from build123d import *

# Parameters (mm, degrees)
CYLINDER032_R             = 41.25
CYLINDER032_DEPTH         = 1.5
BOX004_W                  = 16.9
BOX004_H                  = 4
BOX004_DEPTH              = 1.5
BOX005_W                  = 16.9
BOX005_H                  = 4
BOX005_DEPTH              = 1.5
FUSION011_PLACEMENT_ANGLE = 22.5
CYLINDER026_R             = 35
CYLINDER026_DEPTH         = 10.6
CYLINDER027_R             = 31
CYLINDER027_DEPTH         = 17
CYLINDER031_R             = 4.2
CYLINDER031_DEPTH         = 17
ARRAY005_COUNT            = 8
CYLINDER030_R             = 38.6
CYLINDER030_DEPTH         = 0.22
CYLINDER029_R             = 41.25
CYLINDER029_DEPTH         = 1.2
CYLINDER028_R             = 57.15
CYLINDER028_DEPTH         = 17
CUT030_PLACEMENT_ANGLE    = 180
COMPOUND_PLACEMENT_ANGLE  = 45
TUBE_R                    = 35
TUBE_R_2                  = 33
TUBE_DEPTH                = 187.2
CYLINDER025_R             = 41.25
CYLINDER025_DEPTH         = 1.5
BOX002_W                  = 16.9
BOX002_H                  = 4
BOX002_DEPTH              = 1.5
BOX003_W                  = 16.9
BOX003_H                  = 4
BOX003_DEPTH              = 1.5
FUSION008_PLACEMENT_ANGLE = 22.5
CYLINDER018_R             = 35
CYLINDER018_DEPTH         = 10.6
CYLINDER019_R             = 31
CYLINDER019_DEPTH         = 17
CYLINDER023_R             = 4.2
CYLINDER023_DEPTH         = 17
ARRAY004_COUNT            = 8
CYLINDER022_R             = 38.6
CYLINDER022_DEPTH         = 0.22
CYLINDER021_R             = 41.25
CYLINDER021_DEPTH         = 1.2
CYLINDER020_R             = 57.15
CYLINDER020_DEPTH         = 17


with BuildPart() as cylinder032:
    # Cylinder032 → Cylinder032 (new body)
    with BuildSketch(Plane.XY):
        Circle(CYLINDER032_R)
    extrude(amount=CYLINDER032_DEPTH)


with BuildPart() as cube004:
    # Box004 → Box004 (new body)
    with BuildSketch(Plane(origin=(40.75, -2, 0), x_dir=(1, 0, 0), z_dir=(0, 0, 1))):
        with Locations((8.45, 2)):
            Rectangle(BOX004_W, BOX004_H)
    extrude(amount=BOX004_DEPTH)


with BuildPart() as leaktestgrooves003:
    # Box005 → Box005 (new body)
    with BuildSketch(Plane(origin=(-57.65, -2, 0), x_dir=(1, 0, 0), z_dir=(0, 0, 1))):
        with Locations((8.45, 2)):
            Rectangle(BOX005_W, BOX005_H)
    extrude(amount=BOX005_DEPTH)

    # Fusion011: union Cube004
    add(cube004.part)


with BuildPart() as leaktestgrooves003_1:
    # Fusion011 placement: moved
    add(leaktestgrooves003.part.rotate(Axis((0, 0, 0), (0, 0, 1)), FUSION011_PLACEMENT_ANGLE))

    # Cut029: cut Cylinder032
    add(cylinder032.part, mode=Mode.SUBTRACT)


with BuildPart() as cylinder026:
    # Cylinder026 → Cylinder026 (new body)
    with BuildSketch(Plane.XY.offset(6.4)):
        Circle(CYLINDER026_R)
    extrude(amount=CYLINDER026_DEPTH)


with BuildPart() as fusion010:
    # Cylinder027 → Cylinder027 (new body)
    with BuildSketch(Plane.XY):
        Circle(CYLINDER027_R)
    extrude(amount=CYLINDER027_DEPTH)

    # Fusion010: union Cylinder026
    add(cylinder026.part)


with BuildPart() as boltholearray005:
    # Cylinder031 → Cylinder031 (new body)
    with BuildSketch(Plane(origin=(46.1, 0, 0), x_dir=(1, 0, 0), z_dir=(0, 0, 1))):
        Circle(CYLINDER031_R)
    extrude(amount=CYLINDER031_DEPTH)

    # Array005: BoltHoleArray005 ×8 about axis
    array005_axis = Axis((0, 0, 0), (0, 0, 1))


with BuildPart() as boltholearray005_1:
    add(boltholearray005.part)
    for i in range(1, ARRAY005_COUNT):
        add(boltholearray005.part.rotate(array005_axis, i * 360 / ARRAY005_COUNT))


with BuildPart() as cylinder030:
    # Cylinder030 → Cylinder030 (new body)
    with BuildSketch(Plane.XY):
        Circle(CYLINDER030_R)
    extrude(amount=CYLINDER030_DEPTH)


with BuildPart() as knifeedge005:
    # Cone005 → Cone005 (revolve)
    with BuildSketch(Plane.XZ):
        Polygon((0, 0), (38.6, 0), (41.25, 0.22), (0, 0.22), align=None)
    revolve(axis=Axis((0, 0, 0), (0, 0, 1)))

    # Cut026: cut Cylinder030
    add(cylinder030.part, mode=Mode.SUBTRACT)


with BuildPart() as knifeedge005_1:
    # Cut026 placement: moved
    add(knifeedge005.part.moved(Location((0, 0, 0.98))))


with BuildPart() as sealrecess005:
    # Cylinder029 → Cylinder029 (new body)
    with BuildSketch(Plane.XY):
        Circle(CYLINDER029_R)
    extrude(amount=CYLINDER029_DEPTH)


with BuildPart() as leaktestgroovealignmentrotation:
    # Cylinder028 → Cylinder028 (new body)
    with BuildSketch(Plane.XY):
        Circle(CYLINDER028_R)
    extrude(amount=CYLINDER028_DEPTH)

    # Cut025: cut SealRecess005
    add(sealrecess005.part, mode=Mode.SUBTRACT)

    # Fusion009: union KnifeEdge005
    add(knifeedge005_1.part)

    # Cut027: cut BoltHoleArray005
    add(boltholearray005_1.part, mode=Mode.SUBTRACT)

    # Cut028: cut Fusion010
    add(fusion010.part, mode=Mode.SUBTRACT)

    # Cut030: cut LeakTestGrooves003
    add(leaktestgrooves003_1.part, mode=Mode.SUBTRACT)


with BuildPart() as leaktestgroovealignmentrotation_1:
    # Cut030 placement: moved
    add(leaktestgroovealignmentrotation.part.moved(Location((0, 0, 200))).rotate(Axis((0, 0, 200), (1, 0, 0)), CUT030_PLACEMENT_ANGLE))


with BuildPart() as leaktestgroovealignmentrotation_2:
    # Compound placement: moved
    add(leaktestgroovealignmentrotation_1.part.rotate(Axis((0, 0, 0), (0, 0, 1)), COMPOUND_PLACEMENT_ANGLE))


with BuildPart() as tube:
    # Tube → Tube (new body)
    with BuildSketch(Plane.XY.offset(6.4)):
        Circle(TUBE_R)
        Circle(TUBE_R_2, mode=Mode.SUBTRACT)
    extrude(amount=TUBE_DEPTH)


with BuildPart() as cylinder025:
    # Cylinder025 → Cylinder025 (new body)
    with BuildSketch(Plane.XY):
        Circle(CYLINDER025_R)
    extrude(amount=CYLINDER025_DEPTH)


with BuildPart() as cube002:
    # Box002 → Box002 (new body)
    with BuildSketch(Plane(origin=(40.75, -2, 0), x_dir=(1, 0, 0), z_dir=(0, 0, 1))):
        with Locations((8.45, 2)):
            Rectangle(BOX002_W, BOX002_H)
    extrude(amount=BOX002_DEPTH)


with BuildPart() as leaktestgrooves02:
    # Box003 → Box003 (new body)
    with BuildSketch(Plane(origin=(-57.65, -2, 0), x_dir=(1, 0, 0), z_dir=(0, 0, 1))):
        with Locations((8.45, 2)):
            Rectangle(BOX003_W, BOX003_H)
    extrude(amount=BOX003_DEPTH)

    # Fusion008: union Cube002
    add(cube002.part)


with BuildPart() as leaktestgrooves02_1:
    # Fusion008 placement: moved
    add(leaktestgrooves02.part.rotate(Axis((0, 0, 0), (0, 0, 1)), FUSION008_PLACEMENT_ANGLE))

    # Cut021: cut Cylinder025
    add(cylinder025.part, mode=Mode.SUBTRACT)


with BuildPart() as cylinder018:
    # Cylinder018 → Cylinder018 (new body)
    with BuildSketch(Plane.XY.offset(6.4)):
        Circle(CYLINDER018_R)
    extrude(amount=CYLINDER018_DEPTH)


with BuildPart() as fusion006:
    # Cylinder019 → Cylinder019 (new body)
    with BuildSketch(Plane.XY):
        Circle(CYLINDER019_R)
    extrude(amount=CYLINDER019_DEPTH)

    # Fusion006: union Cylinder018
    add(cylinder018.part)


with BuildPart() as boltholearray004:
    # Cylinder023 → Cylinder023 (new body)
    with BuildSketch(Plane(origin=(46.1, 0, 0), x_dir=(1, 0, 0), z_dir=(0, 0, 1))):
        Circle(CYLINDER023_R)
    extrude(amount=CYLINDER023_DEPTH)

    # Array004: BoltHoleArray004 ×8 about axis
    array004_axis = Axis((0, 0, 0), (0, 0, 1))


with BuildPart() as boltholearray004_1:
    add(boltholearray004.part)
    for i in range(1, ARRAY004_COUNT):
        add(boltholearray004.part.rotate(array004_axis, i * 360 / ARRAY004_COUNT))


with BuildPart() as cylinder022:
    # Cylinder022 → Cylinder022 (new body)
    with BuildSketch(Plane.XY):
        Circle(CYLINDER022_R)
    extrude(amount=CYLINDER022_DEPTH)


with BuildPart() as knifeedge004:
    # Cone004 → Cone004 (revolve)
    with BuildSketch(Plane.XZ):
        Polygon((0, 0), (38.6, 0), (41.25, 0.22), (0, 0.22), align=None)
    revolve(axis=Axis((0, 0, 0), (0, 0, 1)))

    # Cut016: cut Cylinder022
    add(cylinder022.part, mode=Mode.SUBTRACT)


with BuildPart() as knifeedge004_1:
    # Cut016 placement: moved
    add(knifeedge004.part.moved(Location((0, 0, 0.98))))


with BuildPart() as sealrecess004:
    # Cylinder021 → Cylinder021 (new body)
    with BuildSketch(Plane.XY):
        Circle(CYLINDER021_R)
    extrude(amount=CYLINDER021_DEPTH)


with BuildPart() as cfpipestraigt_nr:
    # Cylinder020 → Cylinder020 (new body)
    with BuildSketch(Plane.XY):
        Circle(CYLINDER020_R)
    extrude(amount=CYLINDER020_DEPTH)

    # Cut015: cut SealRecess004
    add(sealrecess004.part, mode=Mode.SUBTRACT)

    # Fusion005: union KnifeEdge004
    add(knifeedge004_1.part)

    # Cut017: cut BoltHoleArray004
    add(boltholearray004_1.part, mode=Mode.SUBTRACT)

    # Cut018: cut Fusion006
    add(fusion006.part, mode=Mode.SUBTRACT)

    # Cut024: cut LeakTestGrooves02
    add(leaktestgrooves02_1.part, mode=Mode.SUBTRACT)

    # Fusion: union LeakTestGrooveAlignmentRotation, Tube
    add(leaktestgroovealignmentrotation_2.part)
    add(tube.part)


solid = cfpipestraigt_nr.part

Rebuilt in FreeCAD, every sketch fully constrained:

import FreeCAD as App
import Part
import Sketcher

V = App.Vector
Q = App.Units.Quantity

doc = App.newDocument("Part")
body = doc.addObject("PartDesign::Body", "Body")

sketch1 = doc.addObject("Sketcher::SketchObject", "Sketch")
body.addObject(sketch1)
sketch1.AttachmentSupport = (doc.XY_Plane, [""])
sketch1.MapMode = "FlatFace"
sketch1.addGeometry(Part.Circle(V(0, 0, 0), V(0, 0, 1), 41), False)
sketch1.addConstraint([
    Sketcher.Constraint("Coincident", 0, 3, -1, 1),
    Sketcher.Constraint("Diameter", 0, Q("82.5 mm")),
])
pad1 = doc.addObject("PartDesign::Pad", "Pad")
body.addObject(pad1)
pad1.Profile = sketch1
pad1.Length = 1.5
body2 = doc.addObject("PartDesign::Body", "Body001")

sketch2 = doc.addObject("Sketcher::SketchObject", "Sketch001")
body2.addObject(sketch2)
sketch2.AttachmentSupport = (doc.getObject("XY_Plane001"), [""])
sketch2.MapMode = "FlatFace"
sketch2.addGeometry([
    Part.LineSegment(V(40.8, 2, 0), V(40.8, -2, 0)),
    Part.LineSegment(V(40.8, -2, 0), V(57.6, -2, 0)),
    Part.LineSegment(V(57.6, -2, 0), V(57.6, 2, 0)),
    Part.LineSegment(V(57.6, 2, 0), V(40.8, 2, 0)),
], False)
sketch2.addConstraint([
    Sketcher.Constraint("Coincident", 0, 2, 1, 1),
    Sketcher.Constraint("Coincident", 1, 2, 2, 1),
    Sketcher.Constraint("Coincident", 2, 2, 3, 1),
    Sketcher.Constraint("Coincident", 3, 2, 0, 1),
    Sketcher.Constraint("Vertical", 0),
    Sketcher.Constraint("Horizontal", 1),
    Sketcher.Constraint("Vertical", 2),
    Sketcher.Constraint("Horizontal", 3),
    Sketcher.Constraint("DistanceY", 0, 2, 0, 1, Q("4 mm")),
    Sketcher.Constraint("DistanceX", 1, 1, 1, 2, Q("16.9 mm")),
    Sketcher.Constraint("DistanceY", 0, 2, -1, 1, Q("2 mm")),
    Sketcher.Constraint("DistanceX", -1, 1, 0, 2, Q("40.75 mm")),
])
pad2 = doc.addObject("PartDesign::Pad", "Pad001")
body2.addObject(pad2)
pad2.Profile = sketch2
pad2.Length = 1.5
body3 = doc.addObject("PartDesign::Body", "Body002")
body3.AllowCompound = True

sketch3 = doc.addObject("Sketcher::SketchObject", "Sketch002")
body3.addObject(sketch3)
sketch3.AttachmentSupport = (doc.getObject("XY_Plane002"), [""])
sketch3.MapMode = "FlatFace"
sketch3.addGeometry([
    Part.LineSegment(V(-57.6, 2, 0), V(-57.6, -2, 0)),
    Part.LineSegment(V(-57.6, -2, 0), V(-40.8, -2, 0)),
    Part.LineSegment(V(-40.8, -2, 0), V(-40.8, 2, 0)),
    Part.LineSegment(V(-40.8, 2, 0), V(-57.6, 2, 0)),
], False)
sketch3.addConstraint([
    Sketcher.Constraint("Coincident", 0, 2, 1, 1),
    Sketcher.Constraint("Coincident", 1, 2, 2, 1),
    Sketcher.Constraint("Coincident", 2, 2, 3, 1),
    Sketcher.Constraint("Coincident", 3, 2, 0, 1),
    Sketcher.Constraint("Vertical", 0),
    Sketcher.Constraint("Horizontal", 1),
    Sketcher.Constraint("Vertical", 2),
    Sketcher.Constraint("Horizontal", 3),
    Sketcher.Constraint("DistanceY", 0, 2, 0, 1, Q("4 mm")),
    Sketcher.Constraint("DistanceX", 1, 1, 1, 2, Q("16.9 mm")),
    Sketcher.Constraint("DistanceY", 0, 2, -1, 1, Q("2 mm")),
    Sketcher.Constraint("DistanceX", 0, 2, -1, 1, Q("57.65 mm")),
])
pad3 = doc.addObject("PartDesign::Pad", "Pad002")
body3.addObject(pad3)
pad3.Profile = sketch3
pad3.Length = 1.5
doc.recompute()

boolean = doc.addObject("PartDesign::Boolean", "Boolean")
body3.addObject(boolean)
boolean.Type = "Fuse"
boolean.addObjects([body2])
body4 = doc.addObject("PartDesign::Body", "Body003")
body4.AllowCompound = True
doc.recompute()

body3.Placement = App.Placement(V(0, 0, 0), App.Rotation(V(0, 0, 1), 22.5))
boolean2 = doc.addObject("PartDesign::Boolean", "Boolean001")
body4.addObject(boolean2)
boolean2.Type = "Fuse"
boolean2.addObjects([body3])
doc.recompute()

boolean3 = doc.addObject("PartDesign::Boolean", "Boolean002")
body4.addObject(boolean3)
boolean3.Type = "Cut"
boolean3.addObjects([body])
body5 = doc.addObject("PartDesign::Body", "Body004")

sketch4 = doc.addObject("Sketcher::SketchObject", "Sketch003")
body5.addObject(sketch4)
sketch4.AttachmentSupport = (doc.getObject("XY_Plane004"), [""])
sketch4.MapMode = "FlatFace"
sketch4.AttachmentOffset = App.Placement(V(0, 0, 6.4), App.Rotation())
sketch4.addGeometry(Part.Circle(V(0, 0, 0), V(0, 0, 1), 35), False)
sketch4.addConstraint([
    Sketcher.Constraint("Coincident", 0, 3, -1, 1),
    Sketcher.Constraint("Diameter", 0, Q("70 mm")),
])
pad4 = doc.addObject("PartDesign::Pad", "Pad003")
body5.addObject(pad4)
pad4.Profile = sketch4
pad4.Length = 10.6
body6 = doc.addObject("PartDesign::Body", "Body005")

sketch5 = doc.addObject("Sketcher::SketchObject", "Sketch004")
body6.addObject(sketch5)
sketch5.AttachmentSupport = (doc.getObject("XY_Plane005"), [""])
sketch5.MapMode = "FlatFace"
sketch5.addGeometry(Part.Circle(V(0, 0, 0), V(0, 0, 1), 31), False)
sketch5.addConstraint([
    Sketcher.Constraint("Coincident", 0, 3, -1, 1),
    Sketcher.Constraint("Diameter", 0, Q("62 mm")),
])
pad5 = doc.addObject("PartDesign::Pad", "Pad004")
body6.addObject(pad5)
pad5.Profile = sketch5
pad5.Length = 17
doc.recompute()

boolean4 = doc.addObject("PartDesign::Boolean", "Boolean003")
body6.addObject(boolean4)
boolean4.Type = "Fuse"
boolean4.addObjects([body5])
body7 = doc.addObject("PartDesign::Body", "Body006")

sketch6 = doc.addObject("Sketcher::SketchObject", "Sketch005")
body7.addObject(sketch6)
sketch6.AttachmentSupport = (doc.getObject("XY_Plane006"), [""])
sketch6.MapMode = "FlatFace"
sketch6.addGeometry(Part.Circle(V(46.1, 0, 0), V(0, 0, 1), 4.2), False)
sketch6.addConstraint([
    Sketcher.Constraint("PointOnObject", 0, 3, -1),
    Sketcher.Constraint("Diameter", 0, Q("8.4 mm")),
    Sketcher.Constraint("DistanceX", -1, 1, 0, 3, Q("46.1 mm")),
])
pad6 = doc.addObject("PartDesign::Pad", "Pad005")
body7.addObject(pad6)
pad6.Profile = sketch6
pad6.Length = 17
body8 = doc.addObject("PartDesign::Body", "Body007")
body8.AllowCompound = True
doc.recompute()

body8.BaseFeature = body7
doc.recompute()

body9 = doc.addObject("PartDesign::Body", "Body008")
body9.BaseFeature = body7
body9.Placement = App.Placement(V(0, 0, 0), App.Rotation(V(0, 0, 1), 45))
boolean5 = doc.addObject("PartDesign::Boolean", "Boolean004")
body8.addObject(boolean5)
boolean5.Type = "Fuse"
boolean5.addObjects([body9])
doc.recompute()

body10 = doc.addObject("PartDesign::Body", "Body009")
body10.BaseFeature = body7
body10.Placement = App.Placement(V(0, 0, 0), App.Rotation(V(0, 0, 1), 90))
boolean6 = doc.addObject("PartDesign::Boolean", "Boolean005")
body8.addObject(boolean6)
boolean6.Type = "Fuse"
boolean6.addObjects([body10])
doc.recompute()

body11 = doc.addObject("PartDesign::Body", "Body010")
body11.BaseFeature = body7
body11.Placement = App.Placement(V(0, 0, 0), App.Rotation(V(0, 0, 1), 135))
boolean7 = doc.addObject("PartDesign::Boolean", "Boolean006")
body8.addObject(boolean7)
boolean7.Type = "Fuse"
boolean7.addObjects([body11])
doc.recompute()

body12 = doc.addObject("PartDesign::Body", "Body011")
body12.BaseFeature = body7
body12.Placement = App.Placement(V(0, 0, 0), App.Rotation(V(0, 0, 1), 180))
boolean8 = doc.addObject("PartDesign::Boolean", "Boolean007")
body8.addObject(boolean8)
boolean8.Type = "Fuse"
boolean8.addObjects([body12])
doc.recompute()

body13 = doc.addObject("PartDesign::Body", "Body012")
body13.BaseFeature = body7
body13.Placement = App.Placement(V(0, 0, 0), App.Rotation(V(0, 0, 1), 225))
boolean9 = doc.addObject("PartDesign::Boolean", "Boolean008")
body8.addObject(boolean9)
boolean9.Type = "Fuse"
boolean9.addObjects([body13])
doc.recompute()

body14 = doc.addObject("PartDesign::Body", "Body013")
body14.BaseFeature = body7
body14.Placement = App.Placement(V(0, 0, 0), App.Rotation(V(0, 0, 1), 270))
boolean10 = doc.addObject("PartDesign::Boolean", "Boolean009")
body8.addObject(boolean10)
boolean10.Type = "Fuse"
boolean10.addObjects([body14])
doc.recompute()

body7.Placement = App.Placement(V(0, 0, 0), App.Rotation(V(0, 0, 1), 315))
boolean11 = doc.addObject("PartDesign::Boolean", "Boolean010")
body8.addObject(boolean11)
boolean11.Type = "Fuse"
boolean11.addObjects([body7])
body15 = doc.addObject("PartDesign::Body", "Body014")

sketch7 = doc.addObject("Sketcher::SketchObject", "Sketch006")
body15.addObject(sketch7)
sketch7.AttachmentSupport = (doc.getObject("XY_Plane014"), [""])
sketch7.MapMode = "FlatFace"
sketch7.addGeometry(Part.Circle(V(0, 0, 0), V(0, 0, 1), 39), False)
sketch7.addConstraint([
    Sketcher.Constraint("Coincident", 0, 3, -1, 1),
    Sketcher.Constraint("Diameter", 0, Q("77.2 mm")),
])
pad7 = doc.addObject("PartDesign::Pad", "Pad006")
body15.addObject(pad7)
pad7.Profile = sketch7
pad7.Length = 0.22
body16 = doc.addObject("PartDesign::Body", "Body015")

sketch8 = doc.addObject("Sketcher::SketchObject", "Sketch007")
body16.addObject(sketch8)
sketch8.AttachmentSupport = (doc.getObject("XZ_Plane015"), [""])
sketch8.MapMode = "FlatFace"
sketch8.addGeometry([
    Part.LineSegment(V(0, 0, 0), V(38.6, 0, 0)),
    Part.LineSegment(V(38.6, 0, 0), V(41.25, 0.22, 0)),
    Part.LineSegment(V(41.25, 0.22, 0), V(0, 0.22, 0)),
    Part.LineSegment(V(0, 0.22, 0), V(0, 0, 0)),
], False)
sketch8.addConstraint([
    Sketcher.Constraint("Coincident", 0, 2, 1, 1),
    Sketcher.Constraint("Coincident", 1, 2, 2, 1),
    Sketcher.Constraint("Coincident", 2, 2, 3, 1),
    Sketcher.Constraint("Coincident", 3, 2, 0, 1),
    Sketcher.Constraint("Horizontal", 0),
    Sketcher.Constraint("Horizontal", 2),
    Sketcher.Constraint("Vertical", 3),
    Sketcher.Constraint("Coincident", 3, 2, -1, 1),
    Sketcher.Constraint("DistanceX", 0, 1, 0, 2, Q("38.6 mm")),
    Sketcher.Constraint("DistanceX", 2, 2, 2, 1, Q("41.25 mm")),
    Sketcher.Constraint("DistanceY", 3, 2, 3, 1, Q("0.22 mm")),
])
revolution = doc.addObject("PartDesign::Revolution", "Revolution")
body16.addObject(revolution)
revolution.Profile = sketch8
revolution.ReferenceAxis = (sketch8, ["V_Axis"])
revolution.Angle = 360
doc.recompute()

boolean12 = doc.addObject("PartDesign::Boolean", "Boolean011")
body16.addObject(boolean12)
boolean12.Type = "Cut"
boolean12.addObjects([body15])
body17 = doc.addObject("PartDesign::Body", "Body016")
doc.recompute()

body16.Placement = App.Placement(V(0, 0, 0.98), App.Rotation(V(0, 0, 1), 0))
boolean13 = doc.addObject("PartDesign::Boolean", "Boolean012")
body17.addObject(boolean13)
boolean13.Type = "Fuse"
boolean13.addObjects([body16])
body18 = doc.addObject("PartDesign::Body", "Body017")

sketch9 = doc.addObject("Sketcher::SketchObject", "Sketch008")
body18.addObject(sketch9)
sketch9.AttachmentSupport = (doc.getObject("XY_Plane017"), [""])
sketch9.MapMode = "FlatFace"
sketch9.addGeometry(Part.Circle(V(0, 0, 0), V(0, 0, 1), 41), False)
sketch9.addConstraint([
    Sketcher.Constraint("Coincident", 0, 3, -1, 1),
    Sketcher.Constraint("Diameter", 0, Q("82.5 mm")),
])
pad8 = doc.addObject("PartDesign::Pad", "Pad007")
body18.addObject(pad8)
pad8.Profile = sketch9
pad8.Length = 1.2
body19 = doc.addObject("PartDesign::Body", "Body018")

sketch10 = doc.addObject("Sketcher::SketchObject", "Sketch009")
body19.addObject(sketch10)
sketch10.AttachmentSupport = (doc.getObject("XY_Plane018"), [""])
sketch10.MapMode = "FlatFace"
sketch10.addGeometry(Part.Circle(V(0, 0, 0), V(0, 0, 1), 57), False)
sketch10.addConstraint([
    Sketcher.Constraint("Coincident", 0, 3, -1, 1),
    Sketcher.Constraint("Diameter", 0, Q("114.3 mm")),
])
pad9 = doc.addObject("PartDesign::Pad", "Pad008")
body19.addObject(pad9)
pad9.Profile = sketch10
pad9.Length = 17
doc.recompute()

boolean14 = doc.addObject("PartDesign::Boolean", "Boolean013")
body19.addObject(boolean14)
boolean14.Type = "Cut"
boolean14.addObjects([body18])
doc.recompute()

boolean15 = doc.addObject("PartDesign::Boolean", "Boolean014")
body19.addObject(boolean15)
boolean15.Type = "Fuse"
boolean15.addObjects([body17])
doc.recompute()

boolean16 = doc.addObject("PartDesign::Boolean", "Boolean015")
body19.addObject(boolean16)
boolean16.Type = "Cut"
boolean16.addObjects([body8])
doc.recompute()

boolean17 = doc.addObject("PartDesign::Boolean", "Boolean016")
body19.addObject(boolean17)
boolean17.Type = "Cut"
boolean17.addObjects([body6])
doc.recompute()

boolean18 = doc.addObject("PartDesign::Boolean", "Boolean017")
body19.addObject(boolean18)
boolean18.Type = "Cut"
boolean18.addObjects([body4])
body20 = doc.addObject("PartDesign::Body", "Body019")
doc.recompute()

body19.Placement = App.Placement(V(0, 0, 200), App.Rotation(V(1, 0, 0), 180))
boolean19 = doc.addObject("PartDesign::Boolean", "Boolean018")
body20.addObject(boolean19)
boolean19.Type = "Fuse"
boolean19.addObjects([body19])
body21 = doc.addObject("PartDesign::Body", "Body020")
doc.recompute()

body20.Placement = App.Placement(V(0, 0, 0), App.Rotation(V(0, 0, 1), 45))
boolean20 = doc.addObject("PartDesign::Boolean", "Boolean019")
body21.addObject(boolean20)
boolean20.Type = "Fuse"
boolean20.addObjects([body20])
body22 = doc.addObject("PartDesign::Body", "Body021")

sketch11 = doc.addObject("Sketcher::SketchObject", "Sketch010")
body22.addObject(sketch11)
sketch11.AttachmentSupport = (doc.getObject("XY_Plane021"), [""])
sketch11.MapMode = "FlatFace"
sketch11.AttachmentOffset = App.Placement(V(0, 0, 6.4), App.Rotation())
sketch11.addGeometry([
    Part.Circle(V(0, 0, 0), V(0, 0, 1), 35),
    Part.Circle(V(0, 0, 0), V(0, 0, 1), 33),
], False)
sketch11.addConstraint([
    Sketcher.Constraint("Coincident", 0, 3, -1, 1),
    Sketcher.Constraint("Coincident", 1, 3, -1, 1),
    Sketcher.Constraint("Diameter", 0, Q("70 mm")),
    Sketcher.Constraint("Diameter", 1, Q("66 mm")),
])
pad10 = doc.addObject("PartDesign::Pad", "Pad009")
body22.addObject(pad10)
pad10.Profile = sketch11
pad10.Length = 187.2
body23 = doc.addObject("PartDesign::Body", "Body022")

sketch12 = doc.addObject("Sketcher::SketchObject", "Sketch011")
body23.addObject(sketch12)
sketch12.AttachmentSupport = (doc.getObject("XY_Plane022"), [""])
sketch12.MapMode = "FlatFace"
sketch12.addGeometry(Part.Circle(V(0, 0, 0), V(0, 0, 1), 41), False)
sketch12.addConstraint([
    Sketcher.Constraint("Coincident", 0, 3, -1, 1),
    Sketcher.Constraint("Diameter", 0, Q("82.5 mm")),
])
pad11 = doc.addObject("PartDesign::Pad", "Pad010")
body23.addObject(pad11)
pad11.Profile = sketch12
pad11.Length = 1.5
body24 = doc.addObject("PartDesign::Body", "Body023")

sketch13 = doc.addObject("Sketcher::SketchObject", "Sketch012")
body24.addObject(sketch13)
sketch13.AttachmentSupport = (doc.getObject("XY_Plane023"), [""])
sketch13.MapMode = "FlatFace"
sketch13.addGeometry([
    Part.LineSegment(V(40.8, 2, 0), V(40.8, -2, 0)),
    Part.LineSegment(V(40.8, -2, 0), V(57.6, -2, 0)),
    Part.LineSegment(V(57.6, -2, 0), V(57.6, 2, 0)),
    Part.LineSegment(V(57.6, 2, 0), V(40.8, 2, 0)),
], False)
sketch13.addConstraint([
    Sketcher.Constraint("Coincident", 0, 2, 1, 1),
    Sketcher.Constraint("Coincident", 1, 2, 2, 1),
    Sketcher.Constraint("Coincident", 2, 2, 3, 1),
    Sketcher.Constraint("Coincident", 3, 2, 0, 1),
    Sketcher.Constraint("Vertical", 0),
    Sketcher.Constraint("Horizontal", 1),
    Sketcher.Constraint("Vertical", 2),
    Sketcher.Constraint("Horizontal", 3),
    Sketcher.Constraint("DistanceY", 0, 2, 0, 1, Q("4 mm")),
    Sketcher.Constraint("DistanceX", 1, 1, 1, 2, Q("16.9 mm")),
    Sketcher.Constraint("DistanceY", 0, 2, -1, 1, Q("2 mm")),
    Sketcher.Constraint("DistanceX", -1, 1, 0, 2, Q("40.75 mm")),
])
pad12 = doc.addObject("PartDesign::Pad", "Pad011")
body24.addObject(pad12)
pad12.Profile = sketch13
pad12.Length = 1.5
body25 = doc.addObject("PartDesign::Body", "Body024")
body25.AllowCompound = True

sketch14 = doc.addObject("Sketcher::SketchObject", "Sketch013")
body25.addObject(sketch14)
sketch14.AttachmentSupport = (doc.getObject("XY_Plane024"), [""])
sketch14.MapMode = "FlatFace"
sketch14.addGeometry([
    Part.LineSegment(V(-57.6, 2, 0), V(-57.6, -2, 0)),
    Part.LineSegment(V(-57.6, -2, 0), V(-40.8, -2, 0)),
    Part.LineSegment(V(-40.8, -2, 0), V(-40.8, 2, 0)),
    Part.LineSegment(V(-40.8, 2, 0), V(-57.6, 2, 0)),
], False)
sketch14.addConstraint([
    Sketcher.Constraint("Coincident", 0, 2, 1, 1),
    Sketcher.Constraint("Coincident", 1, 2, 2, 1),
    Sketcher.Constraint("Coincident", 2, 2, 3, 1),
    Sketcher.Constraint("Coincident", 3, 2, 0, 1),
    Sketcher.Constraint("Vertical", 0),
    Sketcher.Constraint("Horizontal", 1),
    Sketcher.Constraint("Vertical", 2),
    Sketcher.Constraint("Horizontal", 3),
    Sketcher.Constraint("DistanceY", 0, 2, 0, 1, Q("4 mm")),
    Sketcher.Constraint("DistanceX", 1, 1, 1, 2, Q("16.9 mm")),
    Sketcher.Constraint("DistanceY", 0, 2, -1, 1, Q("2 mm")),
    Sketcher.Constraint("DistanceX", 0, 2, -1, 1, Q("57.65 mm")),
])
pad13 = doc.addObject("PartDesign::Pad", "Pad012")
body25.addObject(pad13)
pad13.Profile = sketch14
pad13.Length = 1.5
doc.recompute()

boolean21 = doc.addObject("PartDesign::Boolean", "Boolean020")
body25.addObject(boolean21)
boolean21.Type = "Fuse"
boolean21.addObjects([body24])
body26 = doc.addObject("PartDesign::Body", "Body025")
body26.AllowCompound = True
doc.recompute()

body25.Placement = App.Placement(V(0, 0, 0), App.Rotation(V(0, 0, 1), 22.5))
boolean22 = doc.addObject("PartDesign::Boolean", "Boolean021")
body26.addObject(boolean22)
boolean22.Type = "Fuse"
boolean22.addObjects([body25])
doc.recompute()

boolean23 = doc.addObject("PartDesign::Boolean", "Boolean022")
body26.addObject(boolean23)
boolean23.Type = "Cut"
boolean23.addObjects([body23])
body27 = doc.addObject("PartDesign::Body", "Body026")

sketch15 = doc.addObject("Sketcher::SketchObject", "Sketch014")
body27.addObject(sketch15)
sketch15.AttachmentSupport = (doc.getObject("XY_Plane026"), [""])
sketch15.MapMode = "FlatFace"
sketch15.AttachmentOffset = App.Placement(V(0, 0, 6.4), App.Rotation())
sketch15.addGeometry(Part.Circle(V(0, 0, 0), V(0, 0, 1), 35), False)
sketch15.addConstraint([
    Sketcher.Constraint("Coincident", 0, 3, -1, 1),
    Sketcher.Constraint("Diameter", 0, Q("70 mm")),
])
pad14 = doc.addObject("PartDesign::Pad", "Pad013")
body27.addObject(pad14)
pad14.Profile = sketch15
pad14.Length = 10.6
body28 = doc.addObject("PartDesign::Body", "Body027")

sketch16 = doc.addObject("Sketcher::SketchObject", "Sketch015")
body28.addObject(sketch16)
sketch16.AttachmentSupport = (doc.getObject("XY_Plane027"), [""])
sketch16.MapMode = "FlatFace"
sketch16.addGeometry(Part.Circle(V(0, 0, 0), V(0, 0, 1), 31), False)
sketch16.addConstraint([
    Sketcher.Constraint("Coincident", 0, 3, -1, 1),
    Sketcher.Constraint("Diameter", 0, Q("62 mm")),
])
pad15 = doc.addObject("PartDesign::Pad", "Pad014")
body28.addObject(pad15)
pad15.Profile = sketch16
pad15.Length = 17
doc.recompute()

boolean24 = doc.addObject("PartDesign::Boolean", "Boolean023")
body28.addObject(boolean24)
boolean24.Type = "Fuse"
boolean24.addObjects([body27])
body29 = doc.addObject("PartDesign::Body", "Body028")

sketch17 = doc.addObject("Sketcher::SketchObject", "Sketch016")
body29.addObject(sketch17)
sketch17.AttachmentSupport = (doc.getObject("XY_Plane028"), [""])
sketch17.MapMode = "FlatFace"
sketch17.addGeometry(Part.Circle(V(46.1, 0, 0), V(0, 0, 1), 4.2), False)
sketch17.addConstraint([
    Sketcher.Constraint("PointOnObject", 0, 3, -1),
    Sketcher.Constraint("Diameter", 0, Q("8.4 mm")),
    Sketcher.Constraint("DistanceX", -1, 1, 0, 3, Q("46.1 mm")),
])
pad16 = doc.addObject("PartDesign::Pad", "Pad015")
body29.addObject(pad16)
pad16.Profile = sketch17
pad16.Length = 17
body30 = doc.addObject("PartDesign::Body", "Body029")
body30.AllowCompound = True
doc.recompute()

body30.BaseFeature = body29
doc.recompute()

body31 = doc.addObject("PartDesign::Body", "Body030")
body31.BaseFeature = body29
body31.Placement = App.Placement(V(0, 0, 0), App.Rotation(V(0, 0, 1), 45))
boolean25 = doc.addObject("PartDesign::Boolean", "Boolean024")
body30.addObject(boolean25)
boolean25.Type = "Fuse"
boolean25.addObjects([body31])
doc.recompute()

body32 = doc.addObject("PartDesign::Body", "Body031")
body32.BaseFeature = body29
body32.Placement = App.Placement(V(0, 0, 0), App.Rotation(V(0, 0, 1), 90))
boolean26 = doc.addObject("PartDesign::Boolean", "Boolean025")
body30.addObject(boolean26)
boolean26.Type = "Fuse"
boolean26.addObjects([body32])
doc.recompute()

body33 = doc.addObject("PartDesign::Body", "Body032")
body33.BaseFeature = body29
body33.Placement = App.Placement(V(0, 0, 0), App.Rotation(V(0, 0, 1), 135))
boolean27 = doc.addObject("PartDesign::Boolean", "Boolean026")
body30.addObject(boolean27)
boolean27.Type = "Fuse"
boolean27.addObjects([body33])
doc.recompute()

body34 = doc.addObject("PartDesign::Body", "Body033")
body34.BaseFeature = body29
body34.Placement = App.Placement(V(0, 0, 0), App.Rotation(V(0, 0, 1), 180))
boolean28 = doc.addObject("PartDesign::Boolean", "Boolean027")
body30.addObject(boolean28)
boolean28.Type = "Fuse"
boolean28.addObjects([body34])
doc.recompute()

body35 = doc.addObject("PartDesign::Body", "Body034")
body35.BaseFeature = body29
body35.Placement = App.Placement(V(0, 0, 0), App.Rotation(V(0, 0, 1), 225))
boolean29 = doc.addObject("PartDesign::Boolean", "Boolean028")
body30.addObject(boolean29)
boolean29.Type = "Fuse"
boolean29.addObjects([body35])
doc.recompute()

body36 = doc.addObject("PartDesign::Body", "Body035")
body36.BaseFeature = body29
body36.Placement = App.Placement(V(0, 0, 0), App.Rotation(V(0, 0, 1), 270))
boolean30 = doc.addObject("PartDesign::Boolean", "Boolean029")
body30.addObject(boolean30)
boolean30.Type = "Fuse"
boolean30.addObjects([body36])
doc.recompute()

body29.Placement = App.Placement(V(0, 0, 0), App.Rotation(V(0, 0, 1), 315))
boolean31 = doc.addObject("PartDesign::Boolean", "Boolean030")
body30.addObject(boolean31)
boolean31.Type = "Fuse"
boolean31.addObjects([body29])
body37 = doc.addObject("PartDesign::Body", "Body036")

sketch18 = doc.addObject("Sketcher::SketchObject", "Sketch017")
body37.addObject(sketch18)
sketch18.AttachmentSupport = (doc.getObject("XY_Plane036"), [""])
sketch18.MapMode = "FlatFace"
sketch18.addGeometry(Part.Circle(V(0, 0, 0), V(0, 0, 1), 39), False)
sketch18.addConstraint([
    Sketcher.Constraint("Coincident", 0, 3, -1, 1),
    Sketcher.Constraint("Diameter", 0, Q("77.2 mm")),
])
pad17 = doc.addObject("PartDesign::Pad", "Pad016")
body37.addObject(pad17)
pad17.Profile = sketch18
pad17.Length = 0.22
body38 = doc.addObject("PartDesign::Body", "Body037")

sketch19 = doc.addObject("Sketcher::SketchObject", "Sketch018")
body38.addObject(sketch19)
sketch19.AttachmentSupport = (doc.getObject("XZ_Plane037"), [""])
sketch19.MapMode = "FlatFace"
sketch19.addGeometry([
    Part.LineSegment(V(0, 0, 0), V(38.6, 0, 0)),
    Part.LineSegment(V(38.6, 0, 0), V(41.25, 0.22, 0)),
    Part.LineSegment(V(41.25, 0.22, 0), V(0, 0.22, 0)),
    Part.LineSegment(V(0, 0.22, 0), V(0, 0, 0)),
], False)
sketch19.addConstraint([
    Sketcher.Constraint("Coincident", 0, 2, 1, 1),
    Sketcher.Constraint("Coincident", 1, 2, 2, 1),
    Sketcher.Constraint("Coincident", 2, 2, 3, 1),
    Sketcher.Constraint("Coincident", 3, 2, 0, 1),
    Sketcher.Constraint("Horizontal", 0),
    Sketcher.Constraint("Horizontal", 2),
    Sketcher.Constraint("Vertical", 3),
    Sketcher.Constraint("Coincident", 3, 2, -1, 1),
    Sketcher.Constraint("DistanceX", 0, 1, 0, 2, Q("38.6 mm")),
    Sketcher.Constraint("DistanceX", 2, 2, 2, 1, Q("41.25 mm")),
    Sketcher.Constraint("DistanceY", 3, 2, 3, 1, Q("0.22 mm")),
])
revolution2 = doc.addObject("PartDesign::Revolution", "Revolution001")
body38.addObject(revolution2)
revolution2.Profile = sketch19
revolution2.ReferenceAxis = (sketch19, ["V_Axis"])
revolution2.Angle = 360
doc.recompute()

boolean32 = doc.addObject("PartDesign::Boolean", "Boolean031")
body38.addObject(boolean32)
boolean32.Type = "Cut"
boolean32.addObjects([body37])
body39 = doc.addObject("PartDesign::Body", "Body038")
doc.recompute()

body38.Placement = App.Placement(V(0, 0, 0.98), App.Rotation(V(0, 0, 1), 0))
boolean33 = doc.addObject("PartDesign::Boolean", "Boolean032")
body39.addObject(boolean33)
boolean33.Type = "Fuse"
boolean33.addObjects([body38])
body40 = doc.addObject("PartDesign::Body", "Body039")

sketch20 = doc.addObject("Sketcher::SketchObject", "Sketch019")
body40.addObject(sketch20)
sketch20.AttachmentSupport = (doc.getObject("XY_Plane039"), [""])
sketch20.MapMode = "FlatFace"
sketch20.addGeometry(Part.Circle(V(0, 0, 0), V(0, 0, 1), 41), False)
sketch20.addConstraint([
    Sketcher.Constraint("Coincident", 0, 3, -1, 1),
    Sketcher.Constraint("Diameter", 0, Q("82.5 mm")),
])
pad18 = doc.addObject("PartDesign::Pad", "Pad017")
body40.addObject(pad18)
pad18.Profile = sketch20
pad18.Length = 1.2
body41 = doc.addObject("PartDesign::Body", "Body040")
body41.AllowCompound = True

sketch21 = doc.addObject("Sketcher::SketchObject", "Sketch020")
body41.addObject(sketch21)
sketch21.AttachmentSupport = (doc.getObject("XY_Plane040"), [""])
sketch21.MapMode = "FlatFace"
sketch21.addGeometry(Part.Circle(V(0, 0, 0), V(0, 0, 1), 57), False)
sketch21.addConstraint([
    Sketcher.Constraint("Coincident", 0, 3, -1, 1),
    Sketcher.Constraint("Diameter", 0, Q("114.3 mm")),
])
pad19 = doc.addObject("PartDesign::Pad", "Pad018")
body41.addObject(pad19)
pad19.Profile = sketch21
pad19.Length = 17
doc.recompute()

boolean34 = doc.addObject("PartDesign::Boolean", "Boolean033")
body41.addObject(boolean34)
boolean34.Type = "Cut"
boolean34.addObjects([body40])
doc.recompute()

boolean35 = doc.addObject("PartDesign::Boolean", "Boolean034")
body41.addObject(boolean35)
boolean35.Type = "Fuse"
boolean35.addObjects([body39])
doc.recompute()

boolean36 = doc.addObject("PartDesign::Boolean", "Boolean035")
body41.addObject(boolean36)
boolean36.Type = "Cut"
boolean36.addObjects([body30])
doc.recompute()

boolean37 = doc.addObject("PartDesign::Boolean", "Boolean036")
body41.addObject(boolean37)
boolean37.Type = "Cut"
boolean37.addObjects([body28])
doc.recompute()

boolean38 = doc.addObject("PartDesign::Boolean", "Boolean037")
body41.addObject(boolean38)
boolean38.Type = "Cut"
boolean38.addObjects([body26])
doc.recompute()

boolean39 = doc.addObject("PartDesign::Boolean", "Boolean038")
body41.addObject(boolean39)
boolean39.Type = "Fuse"
boolean39.addObjects([body21])
doc.recompute()

boolean40 = doc.addObject("PartDesign::Boolean", "Boolean039")
body41.addObject(boolean40)
boolean40.Type = "Fuse"
boolean40.addObjects([body22])

doc.recompute()
